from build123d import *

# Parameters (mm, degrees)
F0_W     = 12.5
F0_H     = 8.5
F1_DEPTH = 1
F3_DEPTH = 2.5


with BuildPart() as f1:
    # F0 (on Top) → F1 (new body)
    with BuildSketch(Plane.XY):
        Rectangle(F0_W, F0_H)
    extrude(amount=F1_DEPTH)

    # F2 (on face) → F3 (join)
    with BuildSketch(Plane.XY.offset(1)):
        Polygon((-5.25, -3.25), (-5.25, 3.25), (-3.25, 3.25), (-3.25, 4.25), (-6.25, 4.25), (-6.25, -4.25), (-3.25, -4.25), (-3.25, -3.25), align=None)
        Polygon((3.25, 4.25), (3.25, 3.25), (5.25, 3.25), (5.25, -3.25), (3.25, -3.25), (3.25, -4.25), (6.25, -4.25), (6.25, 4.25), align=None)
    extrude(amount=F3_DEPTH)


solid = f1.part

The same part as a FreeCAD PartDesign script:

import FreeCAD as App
import Part
import Sketcher

V = App.Vector


def add_polygon(sketch, points):
    """Adds a closed chain of lines whose ends are joined by coincident constraints."""
    first, n = sketch.GeometryCount, len(points)
    for a, b in zip(points, points[1:] + points[:1]):
        sketch.addGeometry(Part.LineSegment(App.Vector(*a, 0), App.Vector(*b, 0)), False)
    for i in range(n):
        sketch.addConstraint(Sketcher.Constraint("Coincident", first + i, 2, first + (i + 1) % n, 1))

doc = App.newDocument("Part")
params = doc.addObject("Spreadsheet::Sheet", "Params")
for row, (alias, value) in enumerate([
    ("sketch1_width", "12.5 mm"),
    ("sketch1_height", "8.5 mm"),
    ("pad1_length", "1 mm"),
    ("sketch2_width", "2 mm"),
    ("sketch2_width2", "3 mm"),
    ("sketch2_height", "1 mm"),
    ("sketch2_height2", "6.5 mm"),
    ("pad2_length", "2.5 mm"),
], start=1):
    params.set(f"A{row}", alias)
    params.set(f"B{row}", "=" + value)
    params.setAlias(f"B{row}", alias)

body = doc.addObject("PartDesign::Body", "Body")

sketch1 = body.newObject("Sketcher::SketchObject", "Sketch")
sketch1.AttachmentSupport = (doc.getObject("XY_Plane"), [""])
sketch1.MapMode = "FlatFace"
add_polygon(sketch1, [(-6, 4), (-6, -4), (6, -4), (6, 4)])
sketch1.addConstraint(Sketcher.Constraint("Vertical", 0))
sketch1.addConstraint(Sketcher.Constraint("Horizontal", 1))
sketch1.addConstraint(Sketcher.Constraint("Vertical", 2))
sketch1.addConstraint(Sketcher.Constraint("Horizontal", 3))
sketch1.addConstraint(Sketcher.Constraint("Symmetric", 0, 2, 2, 2, -1, 1))
sketch1.addConstraint(Sketcher.Constraint("DistanceX", 1, 1, 1, 2, 12.5))
sketch1.addConstraint(Sketcher.Constraint("DistanceY", 0, 2, 0, 1, 8.5))
sketch1.setExpression("Constraints[9]", "Params.sketch1_width")
sketch1.setExpression("Constraints[10]", "Params.sketch1_height")
pad1 = body.newObject("PartDesign::Pad", "Pad")
pad1.Profile = sketch1
pad1.setExpression("Length", "Params.pad1_length")

sketch2 = body.newObject("Sketcher::SketchObject", "Sketch001")
sketch2.AttachmentSupport = (doc.getObject("XY_Plane"), [""])
sketch2.MapMode = "FlatFace"
sketch2.AttachmentOffset = App.Placement(V(0, 0, 1), App.Rotation())
add_polygon(sketch2, [(-5.2, -3.2), (-5.2, 3.2), (-3.2, 3.2), (-3.2, 4.2), (-6.2, 4.2), (-6.2, -4.2), (-3.2, -4.2), (-3.2, -3.2)])
add_polygon(sketch2, [(3.2, 4.2), (3.2, 3.2), (5.2, 3.2), (5.2, -3.2), (3.2, -3.2), (3.2, -4.2), (6.2, -4.2), (6.2, 4.2)])
sketch2.addConstraint(Sketcher.Constraint("Vertical", 0))
sketch2.addConstraint(Sketcher.Constraint("Horizontal", 1))
sketch2.addConstraint(Sketcher.Constraint("Vertical", 2))
sketch2.addConstraint(Sketcher.Constraint("Horizontal", 3))
sketch2.addConstraint(Sketcher.Constraint("Vertical", 4))
sketch2.addConstraint(Sketcher.Constraint("Horizontal", 5))
sketch2.addConstraint(Sketcher.Constraint("Vertical", 6))
sketch2.addConstraint(Sketcher.Constraint("Horizontal", 7))
sketch2.addConstraint(Sketcher.Constraint("Vertical", 8))
sketch2.addConstraint(Sketcher.Constraint("Horizontal", 9))
sketch2.addConstraint(Sketcher.Constraint("Vertical", 10))
sketch2.addConstraint(Sketcher.Constraint("Horizontal", 11))
sketch2.addConstraint(Sketcher.Constraint("Vertical", 12))
sketch2.addConstraint(Sketcher.Constraint("Horizontal", 13))
sketch2.addConstraint(Sketcher.Constraint("Vertical", 14))
sketch2.addConstraint(Sketcher.Constraint("Horizontal", 15))
sketch2.addConstraint(Sketcher.Constraint("Symmetric", 6, 2, 8, 2, -1, 1))
sketch2.addConstraint(Sketcher.Constraint("Symmetric", 0, 2, 10, 2, -1, 1))
sketch2.addConstraint(Sketcher.Constraint("Symmetric", 2, 2, 12, 2, -1, 1))
sketch2.addConstraint(Sketcher.Constraint("Symmetric", 4, 2, 14, 2, -1, 1))
sketch2.addConstraint(Sketcher.Constraint("Symmetric", 1, 2, 8, 2, -2))
sketch2.addConstraint(Sketcher.Constraint("Horizontal", 5, 2, 12, 2))
sketch2.addConstraint(Sketcher.Constraint("DistanceX", 1, 1, 1, 2, 2.0))
sketch2.addConstraint(Sketcher.Constraint("DistanceX", 3, 2, 3, 1, 3.0))
sketch2.addConstraint(Sketcher.Constraint("DistanceY", 2, 1, 2, 2, 1.0))
sketch2.addConstraint(Sketcher.Constraint("DistanceY", 0, 1, 0, 2, 6.5))
sketch2.addConstraint(Sketcher.Constraint("DistanceX", 1, 2, 8, 2, 6.5))
sketch2.setExpression("Constraints[38]", "Params.sketch2_width")
sketch2.setExpression("Constraints[39]", "Params.sketch2_width2")
sketch2.setExpression("Constraints[40]", "Params.sketch2_height")
sketch2.setExpression("Constraints[41]", "Params.sketch2_height2")
pad2 = body.newObject("PartDesign::Pad", "Pad001")
pad2.Profile = sketch2
pad2.setExpression("Length", "Params.pad2_length")

doc.recompute()
